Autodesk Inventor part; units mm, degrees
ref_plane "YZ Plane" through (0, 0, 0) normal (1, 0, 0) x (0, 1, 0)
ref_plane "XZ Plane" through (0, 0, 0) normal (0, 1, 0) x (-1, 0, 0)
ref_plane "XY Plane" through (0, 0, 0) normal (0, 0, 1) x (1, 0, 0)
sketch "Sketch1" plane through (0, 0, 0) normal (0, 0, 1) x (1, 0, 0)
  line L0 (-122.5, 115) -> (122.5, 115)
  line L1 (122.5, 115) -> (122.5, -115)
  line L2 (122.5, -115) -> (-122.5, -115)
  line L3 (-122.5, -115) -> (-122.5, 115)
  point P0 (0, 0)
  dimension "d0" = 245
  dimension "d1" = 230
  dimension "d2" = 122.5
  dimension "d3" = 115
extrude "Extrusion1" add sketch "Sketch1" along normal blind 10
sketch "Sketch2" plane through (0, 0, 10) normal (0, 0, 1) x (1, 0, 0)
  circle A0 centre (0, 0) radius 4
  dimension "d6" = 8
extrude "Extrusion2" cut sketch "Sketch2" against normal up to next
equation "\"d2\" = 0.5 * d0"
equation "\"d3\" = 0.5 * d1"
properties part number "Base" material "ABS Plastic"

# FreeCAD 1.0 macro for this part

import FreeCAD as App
import Part
import Sketcher
from FreeCAD import Vector

doc = App.newDocument("Part")
body = doc.addObject("PartDesign::Body", "Body")

sketch1 = doc.addObject("Sketcher::SketchObject", "Sketch")
body.addObject(sketch1)
sketch1.AttachmentSupport = (doc.XY_Plane, [""])
sketch1.MapMode = "FlatFace"
sketch1.addGeometry(Part.LineSegment(Vector(122, 115, 0), Vector(-122, 115, 0)), False)
sketch1.addGeometry(Part.LineSegment(Vector(-122, 115, 0), Vector(-122, -115, 0)), False)
sketch1.addGeometry(Part.LineSegment(Vector(-122, -115, 0), Vector(122, -115, 0)), False)
sketch1.addGeometry(Part.LineSegment(Vector(122, -115, 0), Vector(122, 115, 0)), False)
sketch1.addConstraint(Sketcher.Constraint("Coincident", 0, 2, 1, 1))
sketch1.addConstraint(Sketcher.Constraint("Coincident", 1, 2, 2, 1))
sketch1.addConstraint(Sketcher.Constraint("Coincident", 2, 2, 3, 1))
sketch1.addConstraint(Sketcher.Constraint("Coincident", 3, 2, 0, 1))
sketch1.addConstraint(Sketcher.Constraint("Horizontal", 0))
sketch1.addConstraint(Sketcher.Constraint("Vertical", 1))
sketch1.addConstraint(Sketcher.Constraint("Horizontal", 2))
sketch1.addConstraint(Sketcher.Constraint("Vertical", 3))
sketch1.addConstraint(Sketcher.Constraint("Symmetric", 0, 2, 2, 2, -1, 1))
sketch1.addConstraint(Sketcher.Constraint("DistanceX", 0, 2, 0, 1, 245.0))
sketch1.addConstraint(Sketcher.Constraint("DistanceY", 1, 2, 1, 1, 230.0))
pad1 = doc.addObject("PartDesign::Pad", "Pad")
body.addObject(pad1)
pad1.Profile = sketch1
pad1.Length = 10

sketch2 = doc.addObject("Sketcher::SketchObject", "Sketch001")
body.addObject(sketch2)
sketch2.AttachmentSupport = (doc.XY_Plane, [""])
sketch2.MapMode = "FlatFace"
sketch2.AttachmentOffset = App.Placement(Vector(0, 0, 10), App.Rotation())
sketch2.addGeometry(Part.Circle(Vector(0, 0, 0), Vector(0, 0, 1), 4), False)
sketch2.addConstraint(Sketcher.Constraint("Coincident", 0, 3, -1, 1))
sketch2.addConstraint(Sketcher.Constraint("Diameter", 0, 8.0))
pocket1 = doc.addObject("PartDesign::Pocket", "Pocket")
body.addObject(pocket1)
pocket1.Profile = sketch2
pocket1.Type = "UpToFirst"

doc.recompute()
